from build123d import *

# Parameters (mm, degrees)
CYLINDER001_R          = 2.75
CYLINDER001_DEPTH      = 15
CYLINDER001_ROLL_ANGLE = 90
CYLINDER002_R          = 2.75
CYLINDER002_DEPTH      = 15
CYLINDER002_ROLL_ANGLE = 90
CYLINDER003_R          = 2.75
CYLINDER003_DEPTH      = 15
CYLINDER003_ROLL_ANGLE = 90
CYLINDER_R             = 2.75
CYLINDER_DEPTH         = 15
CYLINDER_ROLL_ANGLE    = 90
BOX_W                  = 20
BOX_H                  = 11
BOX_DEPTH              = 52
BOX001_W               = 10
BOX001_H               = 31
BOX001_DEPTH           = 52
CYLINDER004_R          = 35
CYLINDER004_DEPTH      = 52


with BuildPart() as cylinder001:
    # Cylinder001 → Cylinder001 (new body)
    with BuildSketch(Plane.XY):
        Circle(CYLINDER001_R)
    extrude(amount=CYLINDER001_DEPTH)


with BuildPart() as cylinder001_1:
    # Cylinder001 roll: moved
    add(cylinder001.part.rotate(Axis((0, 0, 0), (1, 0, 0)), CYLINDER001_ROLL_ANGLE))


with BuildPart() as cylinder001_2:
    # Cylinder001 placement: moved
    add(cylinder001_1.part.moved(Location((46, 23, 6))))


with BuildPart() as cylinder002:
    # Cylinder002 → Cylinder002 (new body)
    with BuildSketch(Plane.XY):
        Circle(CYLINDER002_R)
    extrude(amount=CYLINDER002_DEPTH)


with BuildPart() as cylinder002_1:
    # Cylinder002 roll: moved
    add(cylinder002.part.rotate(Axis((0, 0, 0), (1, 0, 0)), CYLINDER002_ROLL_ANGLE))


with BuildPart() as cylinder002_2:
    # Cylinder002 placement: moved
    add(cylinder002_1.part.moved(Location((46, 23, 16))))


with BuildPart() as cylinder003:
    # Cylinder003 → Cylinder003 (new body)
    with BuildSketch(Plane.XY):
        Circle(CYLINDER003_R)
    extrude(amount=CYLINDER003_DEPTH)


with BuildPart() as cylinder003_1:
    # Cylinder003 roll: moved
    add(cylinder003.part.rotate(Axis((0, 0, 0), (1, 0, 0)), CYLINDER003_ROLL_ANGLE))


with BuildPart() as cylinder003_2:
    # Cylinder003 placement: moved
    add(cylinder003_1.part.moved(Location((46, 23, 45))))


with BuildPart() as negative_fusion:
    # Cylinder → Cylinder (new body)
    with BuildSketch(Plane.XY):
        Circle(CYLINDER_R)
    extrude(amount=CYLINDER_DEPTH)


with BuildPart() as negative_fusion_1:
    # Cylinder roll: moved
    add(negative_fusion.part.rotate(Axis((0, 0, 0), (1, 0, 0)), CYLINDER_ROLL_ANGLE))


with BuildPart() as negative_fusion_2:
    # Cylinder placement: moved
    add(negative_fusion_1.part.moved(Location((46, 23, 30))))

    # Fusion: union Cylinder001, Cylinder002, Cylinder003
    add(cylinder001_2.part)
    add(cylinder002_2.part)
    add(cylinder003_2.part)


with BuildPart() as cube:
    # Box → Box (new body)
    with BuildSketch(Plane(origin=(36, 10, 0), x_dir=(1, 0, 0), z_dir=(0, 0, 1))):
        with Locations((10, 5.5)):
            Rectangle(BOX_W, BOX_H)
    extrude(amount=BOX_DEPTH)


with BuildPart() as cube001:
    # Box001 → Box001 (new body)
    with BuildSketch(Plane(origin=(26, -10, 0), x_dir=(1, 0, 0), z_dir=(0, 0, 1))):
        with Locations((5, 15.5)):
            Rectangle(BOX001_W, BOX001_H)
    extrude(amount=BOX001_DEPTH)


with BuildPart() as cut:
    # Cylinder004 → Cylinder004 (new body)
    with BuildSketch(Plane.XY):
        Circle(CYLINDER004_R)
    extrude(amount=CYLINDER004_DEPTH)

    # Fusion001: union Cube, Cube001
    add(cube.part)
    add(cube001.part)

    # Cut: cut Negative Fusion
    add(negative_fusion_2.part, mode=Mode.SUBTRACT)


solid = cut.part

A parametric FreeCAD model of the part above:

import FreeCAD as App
import Part
import Sketcher


def add_polygon(sketch, points):
    """Adds a closed chain of lines whose ends are joined by coincident constraints."""
    first, n = sketch.GeometryCount, len(points)
    for a, b in zip(points, points[1:] + points[:1]):
        sketch.addGeometry(Part.LineSegment(App.Vector(*a, 0), App.Vector(*b, 0)), False)
    for i in range(n):
        sketch.addConstraint(Sketcher.Constraint("Coincident", first + i, 2, first + (i + 1) % n, 1))

doc = App.newDocument("Part")
body = doc.addObject("PartDesign::Body", "Body")

sketch1 = body.newObject("Sketcher::SketchObject", "Sketch")
sketch1.AttachmentSupport = (doc.getObject("XY_Plane"), [""])
sketch1.MapMode = "FlatFace"
sketch1.addGeometry(Part.Circle(App.Vector(0, 0, 0), App.Vector(0, 0, 1), 2.8), False)
sketch1.addConstraint(Sketcher.Constraint("Coincident", 0, 3, -1, 1))
sketch1.addConstraint(Sketcher.Constraint("Diameter", 0, 5.5))
pad1 = body.newObject("PartDesign::Pad", "Pad")
pad1.Profile = sketch1
pad1.Length = 15
body2 = doc.addObject("PartDesign::Body", "Body001")
doc.recompute()

body.Placement = App.Placement(App.Vector(0, 0, 0), App.Rotation(App.Vector(1, 0, 0), 90))
boolean = body2.newObject("PartDesign::Boolean", "Boolean")
boolean.Type = "Fuse"
boolean.addObjects([body])
body3 = doc.addObject("PartDesign::Body", "Body002")
doc.recompute()

body2.Placement = App.Placement(App.Vector(46, 23, 6), App.Rotation(App.Vector(0, 0, 1), 0))
boolean2 = body3.newObject("PartDesign::Boolean", "Boolean001")
boolean2.Type = "Fuse"
boolean2.addObjects([body2])
body4 = doc.addObject("PartDesign::Body", "Body003")

sketch2 = body4.newObject("Sketcher::SketchObject", "Sketch001")
sketch2.AttachmentSupport = (doc.getObject("XY_Plane003"), [""])
sketch2.MapMode = "FlatFace"
sketch2.addGeometry(Part.Circle(App.Vector(0, 0, 0), App.Vector(0, 0, 1), 2.8), False)
sketch2.addConstraint(Sketcher.Constraint("Coincident", 0, 3, -1, 1))
sketch2.addConstraint(Sketcher.Constraint("Diameter", 0, 5.5))
pad2 = body4.newObject("PartDesign::Pad", "Pad001")
pad2.Profile = sketch2
pad2.Length = 15
body5 = doc.addObject("PartDesign::Body", "Body004")
doc.recompute()

body4.Placement = App.Placement(App.Vector(0, 0, 0), App.Rotation(App.Vector(1, 0, 0), 90))
boolean3 = body5.newObject("PartDesign::Boolean", "Boolean002")
boolean3.Type = "Fuse"
boolean3.addObjects([body4])
body6 = doc.addObject("PartDesign::Body", "Body005")
doc.recompute()

body5.Placement = App.Placement(App.Vector(46, 23, 16), App.Rotation(App.Vector(0, 0, 1), 0))
boolean4 = body6.newObject("PartDesign::Boolean", "Boolean003")
boolean4.Type = "Fuse"
boolean4.addObjects([body5])
body7 = doc.addObject("PartDesign::Body", "Body006")

sketch3 = body7.newObject("Sketcher::SketchObject", "Sketch002")
sketch3.AttachmentSupport = (doc.getObject("XY_Plane006"), [""])
sketch3.MapMode = "FlatFace"
sketch3.addGeometry(Part.Circle(App.Vector(0, 0, 0), App.Vector(0, 0, 1), 2.8), False)
sketch3.addConstraint(Sketcher.Constraint("Coincident", 0, 3, -1, 1))
sketch3.addConstraint(Sketcher.Constraint("Diameter", 0, 5.5))
pad3 = body7.newObject("PartDesign::Pad", "Pad002")
pad3.Profile = sketch3
pad3.Length = 15
body8 = doc.addObject("PartDesign::Body", "Body007")
doc.recompute()

body7.Placement = App.Placement(App.Vector(0, 0, 0), App.Rotation(App.Vector(1, 0, 0), 90))
boolean5 = body8.newObject("PartDesign::Boolean", "Boolean004")
boolean5.Type = "Fuse"
boolean5.addObjects([body7])
body9 = doc.addObject("PartDesign::Body", "Body008")
doc.recompute()

body8.Placement = App.Placement(App.Vector(46, 23, 45), App.Rotation(App.Vector(0, 0, 1), 0))
boolean6 = body9.newObject("PartDesign::Boolean", "Boolean005")
boolean6.Type = "Fuse"
boolean6.addObjects([body8])
body10 = doc.addObject("PartDesign::Body", "Body009")

sketch4 = body10.newObject("Sketcher::SketchObject", "Sketch003")
sketch4.AttachmentSupport = (doc.getObject("XY_Plane009"), [""])
sketch4.MapMode = "FlatFace"
sketch4.addGeometry(Part.Circle(App.Vector(0, 0, 0), App.Vector(0, 0, 1), 2.8), False)
sketch4.addConstraint(Sketcher.Constraint("Coincident", 0, 3, -1, 1))
sketch4.addConstraint(Sketcher.Constraint("Diameter", 0, 5.5))
pad4 = body10.newObject("PartDesign::Pad", "Pad003")
pad4.Profile = sketch4
pad4.Length = 15
body11 = doc.addObject("PartDesign::Body", "Body010")
doc.recompute()

body10.Placement = App.Placement(App.Vector(0, 0, 0), App.Rotation(App.Vector(1, 0, 0), 90))
boolean7 = body11.newObject("PartDesign::Boolean", "Boolean006")
boolean7.Type = "Fuse"
boolean7.addObjects([body10])
body12 = doc.addObject("PartDesign::Body", "Body011")
body12.AllowCompound = True
doc.recompute()

body11.Placement = App.Placement(App.Vector(46, 23, 30), App.Rotation(App.Vector(0, 0, 1), 0))
boolean8 = body12.newObject("PartDesign::Boolean", "Boolean007")
boolean8.Type = "Fuse"
boolean8.addObjects([body11])
doc.recompute()

boolean9 = body12.newObject("PartDesign::Boolean", "Boolean008")
boolean9.Type = "Fuse"
boolean9.addObjects([body3])
doc.recompute()

boolean10 = body12.newObject("PartDesign::Boolean", "Boolean009")
boolean10.Type = "Fuse"
boolean10.addObjects([body6])
doc.recompute()

boolean11 = body12.newObject("PartDesign::Boolean", "Boolean010")
boolean11.Type = "Fuse"
boolean11.addObjects([body9])
body13 = doc.addObject("PartDesign::Body", "Body012")

sketch5 = body13.newObject("Sketcher::SketchObject", "Sketch004")
sketch5.AttachmentSupport = (doc.getObject("XY_Plane012"), [""])
sketch5.MapMode = "FlatFace"
add_polygon(sketch5, [(36, 21), (36, 10), (56, 10), (56, 21)])
sketch5.addConstraint(Sketcher.Constraint("Vertical", 0))
sketch5.addConstraint(Sketcher.Constraint("Horizontal", 1))
sketch5.addConstraint(Sketcher.Constraint("Vertical", 2))
sketch5.addConstraint(Sketcher.Constraint("Horizontal", 3))
sketch5.addConstraint(Sketcher.Constraint("DistanceX", 1, 1, 1, 2, 20.0))
sketch5.addConstraint(Sketcher.Constraint("DistanceY", 0, 2, 0, 1, 11.0))
sketch5.addConstraint(Sketcher.Constraint("DistanceX", -1, 1, 0, 2, 36.0))
sketch5.addConstraint(Sketcher.Constraint("DistanceY", -1, 1, 0, 2, 10.0))
pad5 = body13.newObject("PartDesign::Pad", "Pad004")
pad5.Profile = sketch5
pad5.Length = 52
body14 = doc.addObject("PartDesign::Body", "Body013")

sketch6 = body14.newObject("Sketcher::SketchObject", "Sketch005")
sketch6.AttachmentSupport = (doc.getObject("XY_Plane013"), [""])
sketch6.MapMode = "FlatFace"
add_polygon(sketch6, [(26, 21), (26, -10), (36, -10), (36, 21)])
sketch6.addConstraint(Sketcher.Constraint("Vertical", 0))
sketch6.addConstraint(Sketcher.Constraint("Horizontal", 1))
sketch6.addConstraint(Sketcher.Constraint("Vertical", 2))
sketch6.addConstraint(Sketcher.Constraint("Horizontal", 3))
sketch6.addConstraint(Sketcher.Constraint("DistanceX", 1, 1, 1, 2, 10.0))
sketch6.addConstraint(Sketcher.Constraint("DistanceY", 0, 2, 0, 1, 31.0))
sketch6.addConstraint(Sketcher.Constraint("DistanceX", -1, 1, 0, 2, 26.0))
sketch6.addConstraint(Sketcher.Constraint("DistanceY", 0, 2, -1, 1, 10.0))
pad6 = body14.newObject("PartDesign::Pad", "Pad005")
pad6.Profile = sketch6
pad6.Length = 52
body15 = doc.addObject("PartDesign::Body", "Body014")
body15.AllowCompound = True

sketch7 = body15.newObject("Sketcher::SketchObject", "Sketch006")
sketch7.AttachmentSupport = (doc.getObject("XY_Plane014"), [""])
sketch7.MapMode = "FlatFace"
sketch7.addGeometry(Part.Circle(App.Vector(0, 0, 0), App.Vector(0, 0, 1), 35), False)
sketch7.addConstraint(Sketcher.Constraint("Coincident", 0, 3, -1, 1))
sketch7.addConstraint(Sketcher.Constraint("Diameter", 0, 70.0))
pad7 = body15.newObject("PartDesign::Pad", "Pad006")
pad7.Profile = sketch7
pad7.Length = 52
doc.recompute()

boolean12 = body15.newObject("PartDesign::Boolean", "Boolean011")
boolean12.Type = "Fuse"
boolean12.addObjects([body13])
doc.recompute()

boolean13 = body15.newObject("PartDesign::Boolean", "Boolean012")
boolean13.Type = "Fuse"
boolean13.addObjects([body14])
doc.recompute()

boolean14 = body15.newObject("PartDesign::Boolean", "Boolean013")
boolean14.Type = "Cut"
boolean14.addObjects([body12])

doc.recompute()
